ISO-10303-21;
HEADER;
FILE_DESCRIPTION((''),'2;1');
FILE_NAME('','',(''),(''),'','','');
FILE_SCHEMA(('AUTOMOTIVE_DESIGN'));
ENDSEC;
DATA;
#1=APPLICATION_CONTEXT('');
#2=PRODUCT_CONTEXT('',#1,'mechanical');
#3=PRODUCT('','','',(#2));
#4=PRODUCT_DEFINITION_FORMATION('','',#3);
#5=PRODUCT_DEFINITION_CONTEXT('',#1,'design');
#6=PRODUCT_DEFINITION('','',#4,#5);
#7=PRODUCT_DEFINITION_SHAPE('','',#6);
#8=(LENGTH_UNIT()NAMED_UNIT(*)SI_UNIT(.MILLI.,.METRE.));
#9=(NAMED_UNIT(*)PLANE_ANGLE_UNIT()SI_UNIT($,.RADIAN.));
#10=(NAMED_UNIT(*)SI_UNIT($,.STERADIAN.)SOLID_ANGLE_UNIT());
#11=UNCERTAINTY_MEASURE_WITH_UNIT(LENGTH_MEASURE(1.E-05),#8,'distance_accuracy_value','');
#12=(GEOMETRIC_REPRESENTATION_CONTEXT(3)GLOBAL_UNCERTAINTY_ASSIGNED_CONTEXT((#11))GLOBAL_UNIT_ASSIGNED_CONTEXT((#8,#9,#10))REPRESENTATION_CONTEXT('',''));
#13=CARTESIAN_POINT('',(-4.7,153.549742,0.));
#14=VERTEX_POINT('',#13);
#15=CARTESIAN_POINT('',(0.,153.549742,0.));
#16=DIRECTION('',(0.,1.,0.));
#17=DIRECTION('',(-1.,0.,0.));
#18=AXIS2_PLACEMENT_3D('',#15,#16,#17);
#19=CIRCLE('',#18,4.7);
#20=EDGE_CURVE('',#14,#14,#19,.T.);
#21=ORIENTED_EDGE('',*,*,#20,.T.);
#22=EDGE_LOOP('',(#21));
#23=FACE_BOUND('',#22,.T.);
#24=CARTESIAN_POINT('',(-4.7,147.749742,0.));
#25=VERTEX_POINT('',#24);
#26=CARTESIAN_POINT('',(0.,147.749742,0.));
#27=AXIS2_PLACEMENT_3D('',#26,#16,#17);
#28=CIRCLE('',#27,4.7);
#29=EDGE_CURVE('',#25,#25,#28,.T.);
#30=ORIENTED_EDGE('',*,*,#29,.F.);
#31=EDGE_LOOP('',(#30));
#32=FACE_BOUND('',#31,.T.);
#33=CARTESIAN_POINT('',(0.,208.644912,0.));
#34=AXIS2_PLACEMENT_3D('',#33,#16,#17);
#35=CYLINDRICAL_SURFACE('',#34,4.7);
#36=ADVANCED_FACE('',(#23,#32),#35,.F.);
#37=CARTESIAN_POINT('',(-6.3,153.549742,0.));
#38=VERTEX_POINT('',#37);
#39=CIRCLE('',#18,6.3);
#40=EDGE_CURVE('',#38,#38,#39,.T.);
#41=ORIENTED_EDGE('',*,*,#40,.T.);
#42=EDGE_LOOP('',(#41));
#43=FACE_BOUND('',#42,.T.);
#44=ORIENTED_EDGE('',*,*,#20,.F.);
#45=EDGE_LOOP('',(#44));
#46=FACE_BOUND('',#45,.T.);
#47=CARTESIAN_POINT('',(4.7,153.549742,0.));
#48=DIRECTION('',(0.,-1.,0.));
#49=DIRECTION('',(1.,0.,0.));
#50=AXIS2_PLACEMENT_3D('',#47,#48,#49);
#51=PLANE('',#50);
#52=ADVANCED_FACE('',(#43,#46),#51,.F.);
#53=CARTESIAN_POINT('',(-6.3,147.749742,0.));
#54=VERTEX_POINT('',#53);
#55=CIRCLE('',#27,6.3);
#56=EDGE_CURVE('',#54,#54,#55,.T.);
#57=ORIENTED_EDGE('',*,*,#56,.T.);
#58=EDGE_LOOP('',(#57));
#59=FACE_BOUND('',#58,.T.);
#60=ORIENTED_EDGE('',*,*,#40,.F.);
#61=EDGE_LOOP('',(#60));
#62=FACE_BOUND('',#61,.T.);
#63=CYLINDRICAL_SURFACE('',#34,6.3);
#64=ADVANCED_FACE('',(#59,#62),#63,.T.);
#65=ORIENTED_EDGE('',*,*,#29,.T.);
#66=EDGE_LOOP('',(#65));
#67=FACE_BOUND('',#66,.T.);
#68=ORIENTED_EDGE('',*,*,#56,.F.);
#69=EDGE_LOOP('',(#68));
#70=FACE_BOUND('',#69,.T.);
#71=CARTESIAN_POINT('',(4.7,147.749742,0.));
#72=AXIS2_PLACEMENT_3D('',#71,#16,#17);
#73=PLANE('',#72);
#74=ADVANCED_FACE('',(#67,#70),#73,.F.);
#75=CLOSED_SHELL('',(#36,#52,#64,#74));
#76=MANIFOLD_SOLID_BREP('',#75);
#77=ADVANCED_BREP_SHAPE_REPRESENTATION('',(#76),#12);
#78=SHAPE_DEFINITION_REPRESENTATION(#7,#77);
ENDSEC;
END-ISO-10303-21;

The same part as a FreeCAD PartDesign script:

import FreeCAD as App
import Part
import Sketcher

V = App.Vector
Q = App.Units.Quantity


def add_polygon(sketch, points):
    """Adds a closed chain of lines whose ends are joined by coincident constraints."""
    first, n = sketch.GeometryCount, len(points)
    for a, b in zip(points, points[1:] + points[:1]):
        sketch.addGeometry(Part.LineSegment(App.Vector(*a, 0), App.Vector(*b, 0)), False)
    for i in range(n):
        sketch.addConstraint(Sketcher.Constraint("Coincident", first + i, 2, first + (i + 1) % n, 1))

doc = App.newDocument("Part")
body = doc.addObject("PartDesign::Body", "Body")

sketch1 = body.newObject("Sketcher::SketchObject", "Sketch")
sketch1.AttachmentSupport = (doc.getObject("XY_Plane"), [""])
sketch1.MapMode = "FlatFace"
add_polygon(sketch1, [(4.7, 153.5), (4.7, 147.7), (6.3, 147.7), (6.3, 153.5)])
sketch1.addConstraint([
    Sketcher.Constraint("Vertical", 0),
    Sketcher.Constraint("Horizontal", 1),
    Sketcher.Constraint("Vertical", 2),
    Sketcher.Constraint("Horizontal", 3),
    Sketcher.Constraint("DistanceX", 1, 1, 1, 2, Q("1.6 mm")),
    Sketcher.Constraint("DistanceY", 0, 2, 0, 1, Q("5.8 mm")),
    Sketcher.Constraint("DistanceX", -1, 1, 0, 2, Q("4.7 mm")),
    Sketcher.Constraint("DistanceY", -1, 1, 0, 2, Q("147.749742 mm")),
])
revolution = body.newObject("PartDesign::Revolution", "Revolution")
revolution.Profile = sketch1
revolution.ReferenceAxis = (sketch1, ["V_Axis"])
revolution.Angle = 360

doc.recompute()
